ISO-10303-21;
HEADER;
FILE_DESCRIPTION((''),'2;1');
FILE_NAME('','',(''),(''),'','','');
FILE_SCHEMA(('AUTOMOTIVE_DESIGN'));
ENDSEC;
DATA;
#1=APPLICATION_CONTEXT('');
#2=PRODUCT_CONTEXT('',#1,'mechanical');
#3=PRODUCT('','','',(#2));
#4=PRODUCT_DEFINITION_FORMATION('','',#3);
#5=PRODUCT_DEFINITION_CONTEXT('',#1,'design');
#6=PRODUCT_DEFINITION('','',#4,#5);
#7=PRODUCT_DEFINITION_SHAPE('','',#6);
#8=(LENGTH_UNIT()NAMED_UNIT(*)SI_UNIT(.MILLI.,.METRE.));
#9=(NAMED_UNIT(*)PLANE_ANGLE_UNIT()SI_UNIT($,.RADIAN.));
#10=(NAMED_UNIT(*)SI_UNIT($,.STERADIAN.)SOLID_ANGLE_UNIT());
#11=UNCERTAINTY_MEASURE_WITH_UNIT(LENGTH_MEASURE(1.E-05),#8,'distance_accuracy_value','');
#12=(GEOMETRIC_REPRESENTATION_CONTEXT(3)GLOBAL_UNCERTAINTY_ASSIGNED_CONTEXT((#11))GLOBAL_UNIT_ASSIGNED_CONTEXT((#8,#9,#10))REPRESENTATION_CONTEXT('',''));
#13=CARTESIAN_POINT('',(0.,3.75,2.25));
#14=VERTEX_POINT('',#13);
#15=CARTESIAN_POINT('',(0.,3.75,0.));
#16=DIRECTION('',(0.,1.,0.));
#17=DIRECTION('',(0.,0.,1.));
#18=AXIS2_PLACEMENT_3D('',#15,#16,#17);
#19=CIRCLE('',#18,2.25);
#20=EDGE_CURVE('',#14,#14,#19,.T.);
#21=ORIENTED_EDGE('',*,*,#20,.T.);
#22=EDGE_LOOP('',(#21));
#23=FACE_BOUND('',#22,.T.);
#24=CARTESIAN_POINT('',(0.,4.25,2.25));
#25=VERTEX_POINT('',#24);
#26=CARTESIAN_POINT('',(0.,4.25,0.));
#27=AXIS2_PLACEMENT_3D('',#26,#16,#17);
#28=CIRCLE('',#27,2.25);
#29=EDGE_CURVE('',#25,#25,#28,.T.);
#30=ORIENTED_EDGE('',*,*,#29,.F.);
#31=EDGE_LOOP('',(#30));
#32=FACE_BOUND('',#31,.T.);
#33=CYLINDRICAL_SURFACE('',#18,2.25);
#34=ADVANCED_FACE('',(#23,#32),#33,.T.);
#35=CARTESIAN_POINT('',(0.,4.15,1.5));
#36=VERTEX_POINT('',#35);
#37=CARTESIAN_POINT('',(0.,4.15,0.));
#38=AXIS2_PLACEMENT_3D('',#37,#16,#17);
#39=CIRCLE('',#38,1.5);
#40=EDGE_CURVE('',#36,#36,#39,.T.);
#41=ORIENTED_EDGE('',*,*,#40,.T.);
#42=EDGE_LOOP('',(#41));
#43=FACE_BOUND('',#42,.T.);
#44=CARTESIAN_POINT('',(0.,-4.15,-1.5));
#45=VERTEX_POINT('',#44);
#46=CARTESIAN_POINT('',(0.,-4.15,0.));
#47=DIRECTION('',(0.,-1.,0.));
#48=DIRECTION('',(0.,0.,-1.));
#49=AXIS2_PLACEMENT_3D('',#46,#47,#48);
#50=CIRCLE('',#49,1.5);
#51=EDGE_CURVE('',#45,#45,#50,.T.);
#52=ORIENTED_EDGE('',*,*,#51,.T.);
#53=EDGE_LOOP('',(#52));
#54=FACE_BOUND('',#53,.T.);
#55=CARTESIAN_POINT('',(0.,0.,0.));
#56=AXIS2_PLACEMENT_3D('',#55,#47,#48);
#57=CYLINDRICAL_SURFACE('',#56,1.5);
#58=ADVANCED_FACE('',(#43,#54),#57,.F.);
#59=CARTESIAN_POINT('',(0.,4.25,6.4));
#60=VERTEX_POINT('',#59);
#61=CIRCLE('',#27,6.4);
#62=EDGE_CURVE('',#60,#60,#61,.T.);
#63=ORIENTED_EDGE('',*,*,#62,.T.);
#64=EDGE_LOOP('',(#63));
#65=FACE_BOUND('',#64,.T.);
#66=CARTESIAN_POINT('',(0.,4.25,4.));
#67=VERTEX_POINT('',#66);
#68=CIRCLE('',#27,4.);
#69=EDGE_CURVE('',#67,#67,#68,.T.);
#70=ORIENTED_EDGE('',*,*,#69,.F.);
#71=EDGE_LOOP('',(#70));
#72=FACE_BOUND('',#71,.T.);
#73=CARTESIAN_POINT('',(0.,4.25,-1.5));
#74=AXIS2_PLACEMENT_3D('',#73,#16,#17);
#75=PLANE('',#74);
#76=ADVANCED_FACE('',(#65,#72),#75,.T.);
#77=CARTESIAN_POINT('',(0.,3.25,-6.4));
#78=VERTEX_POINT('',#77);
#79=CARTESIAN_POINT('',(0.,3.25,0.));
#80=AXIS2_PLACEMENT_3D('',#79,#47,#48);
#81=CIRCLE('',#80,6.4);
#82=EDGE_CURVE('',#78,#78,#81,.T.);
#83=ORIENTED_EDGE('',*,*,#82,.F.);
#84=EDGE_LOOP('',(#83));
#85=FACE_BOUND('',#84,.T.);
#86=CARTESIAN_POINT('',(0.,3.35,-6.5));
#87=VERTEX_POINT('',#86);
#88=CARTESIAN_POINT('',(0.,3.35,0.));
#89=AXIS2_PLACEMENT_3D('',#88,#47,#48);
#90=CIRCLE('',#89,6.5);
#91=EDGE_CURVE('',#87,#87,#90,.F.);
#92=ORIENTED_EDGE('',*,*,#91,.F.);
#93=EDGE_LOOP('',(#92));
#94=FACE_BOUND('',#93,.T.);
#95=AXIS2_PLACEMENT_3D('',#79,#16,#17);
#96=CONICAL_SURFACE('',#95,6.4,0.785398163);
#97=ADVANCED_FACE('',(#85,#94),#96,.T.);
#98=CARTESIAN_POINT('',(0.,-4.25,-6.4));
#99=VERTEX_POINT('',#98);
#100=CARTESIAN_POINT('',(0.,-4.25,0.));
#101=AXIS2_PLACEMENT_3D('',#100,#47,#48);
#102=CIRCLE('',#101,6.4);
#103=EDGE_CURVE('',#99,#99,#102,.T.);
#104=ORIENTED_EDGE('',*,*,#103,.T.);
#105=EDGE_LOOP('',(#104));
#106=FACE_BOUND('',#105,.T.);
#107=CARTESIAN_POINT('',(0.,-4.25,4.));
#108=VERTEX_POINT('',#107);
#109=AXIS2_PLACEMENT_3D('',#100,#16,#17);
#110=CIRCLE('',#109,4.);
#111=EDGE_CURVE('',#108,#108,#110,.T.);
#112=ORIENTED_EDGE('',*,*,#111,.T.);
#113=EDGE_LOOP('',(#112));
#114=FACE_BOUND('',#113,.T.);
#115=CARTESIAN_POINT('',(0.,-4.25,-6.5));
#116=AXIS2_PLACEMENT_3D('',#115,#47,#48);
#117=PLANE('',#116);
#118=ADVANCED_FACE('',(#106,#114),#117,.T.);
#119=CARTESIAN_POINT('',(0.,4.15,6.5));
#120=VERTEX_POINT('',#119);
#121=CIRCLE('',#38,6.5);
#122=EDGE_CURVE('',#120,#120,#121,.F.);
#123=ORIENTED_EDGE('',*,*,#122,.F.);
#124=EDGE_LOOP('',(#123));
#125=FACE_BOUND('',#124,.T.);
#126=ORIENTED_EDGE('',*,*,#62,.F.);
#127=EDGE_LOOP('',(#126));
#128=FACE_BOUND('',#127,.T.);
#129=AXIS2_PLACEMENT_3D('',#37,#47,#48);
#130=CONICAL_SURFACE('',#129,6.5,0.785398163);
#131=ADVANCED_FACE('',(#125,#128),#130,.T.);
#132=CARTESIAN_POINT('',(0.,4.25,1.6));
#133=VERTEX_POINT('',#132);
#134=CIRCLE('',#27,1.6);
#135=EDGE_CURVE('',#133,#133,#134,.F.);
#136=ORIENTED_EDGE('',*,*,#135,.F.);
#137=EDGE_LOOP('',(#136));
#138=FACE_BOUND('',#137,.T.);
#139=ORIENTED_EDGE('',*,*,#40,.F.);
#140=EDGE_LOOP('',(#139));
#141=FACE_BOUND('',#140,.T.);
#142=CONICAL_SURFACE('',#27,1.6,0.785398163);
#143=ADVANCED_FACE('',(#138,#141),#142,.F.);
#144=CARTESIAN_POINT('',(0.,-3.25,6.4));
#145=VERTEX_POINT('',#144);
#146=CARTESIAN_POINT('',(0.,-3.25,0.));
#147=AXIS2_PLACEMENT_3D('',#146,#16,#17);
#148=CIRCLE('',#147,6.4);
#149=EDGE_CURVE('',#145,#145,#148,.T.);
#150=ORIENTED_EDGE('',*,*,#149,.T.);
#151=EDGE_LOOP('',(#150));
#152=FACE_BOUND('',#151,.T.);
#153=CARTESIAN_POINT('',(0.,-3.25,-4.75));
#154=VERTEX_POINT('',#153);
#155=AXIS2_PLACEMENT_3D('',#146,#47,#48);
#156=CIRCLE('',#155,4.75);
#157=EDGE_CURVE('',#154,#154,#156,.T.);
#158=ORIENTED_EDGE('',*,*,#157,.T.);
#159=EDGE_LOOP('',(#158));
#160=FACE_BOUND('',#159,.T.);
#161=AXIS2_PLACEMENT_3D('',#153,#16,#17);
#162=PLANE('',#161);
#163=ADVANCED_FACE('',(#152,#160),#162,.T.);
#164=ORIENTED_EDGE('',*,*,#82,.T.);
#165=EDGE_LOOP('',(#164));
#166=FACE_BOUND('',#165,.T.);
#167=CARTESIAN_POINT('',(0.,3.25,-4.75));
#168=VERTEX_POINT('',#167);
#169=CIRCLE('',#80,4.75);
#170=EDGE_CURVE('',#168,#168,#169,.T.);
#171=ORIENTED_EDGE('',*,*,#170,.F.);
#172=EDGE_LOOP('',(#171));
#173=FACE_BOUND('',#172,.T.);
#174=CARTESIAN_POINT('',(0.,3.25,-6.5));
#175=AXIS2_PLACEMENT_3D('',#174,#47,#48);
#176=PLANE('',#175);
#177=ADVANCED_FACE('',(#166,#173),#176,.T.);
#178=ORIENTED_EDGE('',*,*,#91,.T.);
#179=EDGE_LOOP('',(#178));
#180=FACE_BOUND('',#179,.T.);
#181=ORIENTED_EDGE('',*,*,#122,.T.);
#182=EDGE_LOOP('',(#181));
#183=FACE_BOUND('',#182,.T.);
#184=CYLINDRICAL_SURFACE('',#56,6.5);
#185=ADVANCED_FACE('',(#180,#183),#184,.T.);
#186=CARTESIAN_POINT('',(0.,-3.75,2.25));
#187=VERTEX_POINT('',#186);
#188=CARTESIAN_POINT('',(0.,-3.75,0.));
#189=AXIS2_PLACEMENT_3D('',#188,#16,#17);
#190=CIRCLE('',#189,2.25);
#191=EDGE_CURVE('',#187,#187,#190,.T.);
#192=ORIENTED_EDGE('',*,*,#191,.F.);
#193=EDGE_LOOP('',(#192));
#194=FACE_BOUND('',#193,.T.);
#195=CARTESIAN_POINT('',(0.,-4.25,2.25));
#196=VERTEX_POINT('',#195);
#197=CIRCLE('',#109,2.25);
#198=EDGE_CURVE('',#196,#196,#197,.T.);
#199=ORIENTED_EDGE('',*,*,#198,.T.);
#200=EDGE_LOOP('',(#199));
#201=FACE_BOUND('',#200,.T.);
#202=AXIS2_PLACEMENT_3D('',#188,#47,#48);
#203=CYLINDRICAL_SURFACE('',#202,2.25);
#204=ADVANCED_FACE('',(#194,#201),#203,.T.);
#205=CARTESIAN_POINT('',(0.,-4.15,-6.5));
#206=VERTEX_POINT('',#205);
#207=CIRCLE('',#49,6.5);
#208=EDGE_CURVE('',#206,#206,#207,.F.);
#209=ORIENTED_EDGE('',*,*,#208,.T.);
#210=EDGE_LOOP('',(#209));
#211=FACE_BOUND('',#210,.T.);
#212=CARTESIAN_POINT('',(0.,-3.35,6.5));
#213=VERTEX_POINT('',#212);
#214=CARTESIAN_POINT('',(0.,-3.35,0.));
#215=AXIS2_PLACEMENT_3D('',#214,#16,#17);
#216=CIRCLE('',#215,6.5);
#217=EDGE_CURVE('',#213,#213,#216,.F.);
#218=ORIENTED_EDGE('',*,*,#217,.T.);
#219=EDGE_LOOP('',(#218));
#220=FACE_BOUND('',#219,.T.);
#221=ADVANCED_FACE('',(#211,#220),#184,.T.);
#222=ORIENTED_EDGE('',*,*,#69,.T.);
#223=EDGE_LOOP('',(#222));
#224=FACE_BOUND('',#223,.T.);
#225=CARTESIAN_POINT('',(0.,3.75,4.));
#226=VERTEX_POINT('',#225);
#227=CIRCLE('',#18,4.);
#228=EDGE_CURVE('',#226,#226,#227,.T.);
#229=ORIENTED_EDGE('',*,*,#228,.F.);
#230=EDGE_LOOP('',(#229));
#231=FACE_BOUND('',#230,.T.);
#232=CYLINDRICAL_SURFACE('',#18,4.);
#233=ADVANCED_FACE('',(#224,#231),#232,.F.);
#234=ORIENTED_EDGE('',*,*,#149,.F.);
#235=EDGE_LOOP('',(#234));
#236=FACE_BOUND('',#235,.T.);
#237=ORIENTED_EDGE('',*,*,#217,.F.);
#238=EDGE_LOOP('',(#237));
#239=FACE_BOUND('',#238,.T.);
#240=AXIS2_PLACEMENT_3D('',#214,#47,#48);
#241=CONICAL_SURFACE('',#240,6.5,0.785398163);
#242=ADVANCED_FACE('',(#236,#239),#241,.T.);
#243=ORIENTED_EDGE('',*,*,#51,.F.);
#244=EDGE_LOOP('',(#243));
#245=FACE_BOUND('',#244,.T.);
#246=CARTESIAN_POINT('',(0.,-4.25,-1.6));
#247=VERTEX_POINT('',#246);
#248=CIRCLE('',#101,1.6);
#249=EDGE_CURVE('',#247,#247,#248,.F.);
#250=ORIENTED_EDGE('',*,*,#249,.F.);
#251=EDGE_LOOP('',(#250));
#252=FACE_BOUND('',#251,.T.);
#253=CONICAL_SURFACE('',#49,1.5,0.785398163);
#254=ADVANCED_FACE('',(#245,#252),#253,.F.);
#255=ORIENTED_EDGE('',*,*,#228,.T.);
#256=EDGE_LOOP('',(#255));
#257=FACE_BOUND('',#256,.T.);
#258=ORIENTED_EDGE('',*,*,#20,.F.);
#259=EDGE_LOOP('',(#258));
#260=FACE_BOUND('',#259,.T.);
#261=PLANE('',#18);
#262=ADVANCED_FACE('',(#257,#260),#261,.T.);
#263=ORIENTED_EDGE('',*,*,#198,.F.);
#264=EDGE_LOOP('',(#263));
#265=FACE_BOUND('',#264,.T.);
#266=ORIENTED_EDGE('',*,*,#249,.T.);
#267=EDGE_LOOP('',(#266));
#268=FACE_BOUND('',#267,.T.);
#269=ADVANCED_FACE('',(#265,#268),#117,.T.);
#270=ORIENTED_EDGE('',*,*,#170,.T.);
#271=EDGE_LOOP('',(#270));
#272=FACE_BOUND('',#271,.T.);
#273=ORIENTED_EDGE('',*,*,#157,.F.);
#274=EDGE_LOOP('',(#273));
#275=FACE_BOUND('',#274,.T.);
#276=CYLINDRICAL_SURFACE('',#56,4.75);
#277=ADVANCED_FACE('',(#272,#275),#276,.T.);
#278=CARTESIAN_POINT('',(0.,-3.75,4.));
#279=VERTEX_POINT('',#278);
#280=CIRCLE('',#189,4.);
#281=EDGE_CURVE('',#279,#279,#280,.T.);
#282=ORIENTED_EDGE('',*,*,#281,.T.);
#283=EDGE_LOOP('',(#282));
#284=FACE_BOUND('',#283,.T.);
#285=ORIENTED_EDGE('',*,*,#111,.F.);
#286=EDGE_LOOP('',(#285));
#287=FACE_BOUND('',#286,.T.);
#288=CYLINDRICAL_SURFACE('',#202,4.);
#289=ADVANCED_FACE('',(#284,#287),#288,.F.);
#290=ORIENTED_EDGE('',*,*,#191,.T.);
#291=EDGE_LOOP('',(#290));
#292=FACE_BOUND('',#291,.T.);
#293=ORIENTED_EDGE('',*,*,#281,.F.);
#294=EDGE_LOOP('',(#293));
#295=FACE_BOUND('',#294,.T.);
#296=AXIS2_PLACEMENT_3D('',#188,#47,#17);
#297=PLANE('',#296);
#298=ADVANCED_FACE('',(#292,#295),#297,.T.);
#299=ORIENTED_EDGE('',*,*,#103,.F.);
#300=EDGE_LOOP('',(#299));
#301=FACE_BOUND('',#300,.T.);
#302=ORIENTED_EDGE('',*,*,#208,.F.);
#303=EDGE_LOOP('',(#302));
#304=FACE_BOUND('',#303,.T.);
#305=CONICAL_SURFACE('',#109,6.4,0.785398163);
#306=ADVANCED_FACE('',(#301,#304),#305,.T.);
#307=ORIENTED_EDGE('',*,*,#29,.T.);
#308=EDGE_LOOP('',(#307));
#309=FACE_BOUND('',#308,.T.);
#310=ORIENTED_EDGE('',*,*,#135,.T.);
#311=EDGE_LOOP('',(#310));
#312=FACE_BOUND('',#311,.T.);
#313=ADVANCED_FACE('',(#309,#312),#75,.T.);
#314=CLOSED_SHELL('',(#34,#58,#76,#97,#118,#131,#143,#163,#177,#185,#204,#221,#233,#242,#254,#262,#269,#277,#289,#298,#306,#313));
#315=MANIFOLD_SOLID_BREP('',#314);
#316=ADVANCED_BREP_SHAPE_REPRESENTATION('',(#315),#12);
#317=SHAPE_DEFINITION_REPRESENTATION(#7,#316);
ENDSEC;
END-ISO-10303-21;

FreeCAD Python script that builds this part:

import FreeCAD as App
import Part
import Sketcher
Q = App.Units.Quantity


def edges_at(feature, points):
    """Names of the edges that pass closest to the given points."""
    edges = feature.Shape.Edges
    near = lambda p: min(range(len(edges)), key=lambda i: edges[i].distToShape(Part.Vertex(*p))[0])
    return sorted({f"Edge{near(p) + 1}" for p in points})

doc = App.newDocument("Part")
body = doc.addObject("PartDesign::Body", "Body")

# Sketch on YZ plane
sketch1 = doc.addObject("Sketcher::SketchObject", "Sketch")
body.addObject(sketch1)
sketch1.AttachmentSupport = (doc.YZ_Plane, [""])
sketch1.MapMode = "FlatFace"
sketch1.addGeometry([
    Part.LineSegment(App.Vector(4.25, -1.5, 0), App.Vector(-4.25, -1.5, 0)),  # 0
    Part.LineSegment(App.Vector(-4.25, -1.5, 0), App.Vector(-4.25, -6.5, 0)),  # 1
    Part.LineSegment(App.Vector(-4.25, -6.5, 0), App.Vector(-3.25, -6.5, 0)),  # 2
    Part.LineSegment(App.Vector(-3.25, -6.5, 0), App.Vector(-3.25, -4.75, 0)),  # 3
    Part.LineSegment(App.Vector(-3.25, -4.75, 0), App.Vector(3.25, -4.75, 0)),  # 4
    Part.LineSegment(App.Vector(3.25, -4.75, 0), App.Vector(3.25, -6.5, 0)),  # 5
    Part.LineSegment(App.Vector(3.25, -6.5, 0), App.Vector(4.25, -6.5, 0)),  # 6
    Part.LineSegment(App.Vector(4.25, -6.5, 0), App.Vector(4.25, -1.5, 0)),  # 7
], False)
sketch1.addConstraint([
    Sketcher.Constraint("Coincident", 0, 2, 1, 1),
    Sketcher.Constraint("Coincident", 1, 2, 2, 1),
    Sketcher.Constraint("Coincident", 2, 2, 3, 1),
    Sketcher.Constraint("Coincident", 3, 2, 4, 1),
    Sketcher.Constraint("Coincident", 4, 2, 5, 1),
    Sketcher.Constraint("Coincident", 5, 2, 6, 1),
    Sketcher.Constraint("Coincident", 6, 2, 7, 1),
    Sketcher.Constraint("Coincident", 7, 2, 0, 1),
    Sketcher.Constraint("Horizontal", 0),
    Sketcher.Constraint("Vertical", 1),
    Sketcher.Constraint("Horizontal", 2),
    Sketcher.Constraint("Vertical", 3),
    Sketcher.Constraint("Horizontal", 4),
    Sketcher.Constraint("Vertical", 5),
    Sketcher.Constraint("Horizontal", 6),
    Sketcher.Constraint("Vertical", 7),
    Sketcher.Constraint("Symmetric", 2, 2, 5, 2, -2),
    Sketcher.Constraint("Equal", 2, 6),
    Sketcher.Constraint("DistanceX", 2, 1, 2, 2, Q("1 mm")),
    Sketcher.Constraint("DistanceY", 1, 2, 1, 1, Q("5 mm")),
    Sketcher.Constraint("DistanceX", 0, 2, 0, 1, Q("8.5 mm")),
    Sketcher.Constraint("DistanceY", 3, 1, 3, 2, Q("1.75 mm")),
    Sketcher.Constraint("DistanceY", 0, 2, -1, 1, Q("1.5 mm")),
])
revolution = doc.addObject("PartDesign::Revolution", "Revolution")
body.addObject(revolution)
revolution.Profile = sketch1
revolution.ReferenceAxis = (sketch1, ["H_Axis"])
revolution.Angle = 360
doc.recompute()

chamfer = doc.addObject("PartDesign::Chamfer", "Chamfer")
body.addObject(chamfer)
chamfer.Base = (revolution, edges_at(revolution, [
    (0, -4.25, 1.5),
    (0, -4.25, 6.5),
    (0, -3.25, 6.5),
    (0, 3.25, 6.5),
    (0, 4.25, 6.5),
    (0, 4.25, 1.5),
]))
chamfer.Size = 0.1

# Sketch on XZ plane
sketch2 = doc.addObject("Sketcher::SketchObject", "Sketch001")
body.addObject(sketch2)
sketch2.AttachmentSupport = (doc.XZ_Plane, [""])
sketch2.MapMode = "FlatFace"
sketch2.AttachmentOffset = App.Placement(App.Vector(0, 0, -4.25), App.Rotation())
sketch2.addGeometry([
    Part.Circle(App.Vector(0, 0, 0), App.Vector(0, 0, 1), 4),
    Part.Circle(App.Vector(0, 0, 0), App.Vector(0, 0, 1), 2.25),
], False)
sketch2.addConstraint([
    Sketcher.Constraint("Coincident", 0, 3, -1, 1),
    Sketcher.Constraint("Coincident", 1, 3, -1, 1),
    Sketcher.Constraint("Diameter", 0, Q("8 mm")),
    Sketcher.Constraint("Diameter", 1, Q("4.5 mm")),
])
pocket1 = doc.addObject("PartDesign::Pocket", "Pocket")
body.addObject(pocket1)
pocket1.Profile = sketch2
pocket1.Length = 0.5
pocket1.Reversed = True
doc.recompute()

mirrored = doc.addObject("PartDesign::Mirrored", "Mirrored")
body.addObject(mirrored)
mirrored.Originals = [pocket1]
mirrored.MirrorPlane = (doc.XZ_Plane, [""])
body.Tip = mirrored

doc.recompute()
